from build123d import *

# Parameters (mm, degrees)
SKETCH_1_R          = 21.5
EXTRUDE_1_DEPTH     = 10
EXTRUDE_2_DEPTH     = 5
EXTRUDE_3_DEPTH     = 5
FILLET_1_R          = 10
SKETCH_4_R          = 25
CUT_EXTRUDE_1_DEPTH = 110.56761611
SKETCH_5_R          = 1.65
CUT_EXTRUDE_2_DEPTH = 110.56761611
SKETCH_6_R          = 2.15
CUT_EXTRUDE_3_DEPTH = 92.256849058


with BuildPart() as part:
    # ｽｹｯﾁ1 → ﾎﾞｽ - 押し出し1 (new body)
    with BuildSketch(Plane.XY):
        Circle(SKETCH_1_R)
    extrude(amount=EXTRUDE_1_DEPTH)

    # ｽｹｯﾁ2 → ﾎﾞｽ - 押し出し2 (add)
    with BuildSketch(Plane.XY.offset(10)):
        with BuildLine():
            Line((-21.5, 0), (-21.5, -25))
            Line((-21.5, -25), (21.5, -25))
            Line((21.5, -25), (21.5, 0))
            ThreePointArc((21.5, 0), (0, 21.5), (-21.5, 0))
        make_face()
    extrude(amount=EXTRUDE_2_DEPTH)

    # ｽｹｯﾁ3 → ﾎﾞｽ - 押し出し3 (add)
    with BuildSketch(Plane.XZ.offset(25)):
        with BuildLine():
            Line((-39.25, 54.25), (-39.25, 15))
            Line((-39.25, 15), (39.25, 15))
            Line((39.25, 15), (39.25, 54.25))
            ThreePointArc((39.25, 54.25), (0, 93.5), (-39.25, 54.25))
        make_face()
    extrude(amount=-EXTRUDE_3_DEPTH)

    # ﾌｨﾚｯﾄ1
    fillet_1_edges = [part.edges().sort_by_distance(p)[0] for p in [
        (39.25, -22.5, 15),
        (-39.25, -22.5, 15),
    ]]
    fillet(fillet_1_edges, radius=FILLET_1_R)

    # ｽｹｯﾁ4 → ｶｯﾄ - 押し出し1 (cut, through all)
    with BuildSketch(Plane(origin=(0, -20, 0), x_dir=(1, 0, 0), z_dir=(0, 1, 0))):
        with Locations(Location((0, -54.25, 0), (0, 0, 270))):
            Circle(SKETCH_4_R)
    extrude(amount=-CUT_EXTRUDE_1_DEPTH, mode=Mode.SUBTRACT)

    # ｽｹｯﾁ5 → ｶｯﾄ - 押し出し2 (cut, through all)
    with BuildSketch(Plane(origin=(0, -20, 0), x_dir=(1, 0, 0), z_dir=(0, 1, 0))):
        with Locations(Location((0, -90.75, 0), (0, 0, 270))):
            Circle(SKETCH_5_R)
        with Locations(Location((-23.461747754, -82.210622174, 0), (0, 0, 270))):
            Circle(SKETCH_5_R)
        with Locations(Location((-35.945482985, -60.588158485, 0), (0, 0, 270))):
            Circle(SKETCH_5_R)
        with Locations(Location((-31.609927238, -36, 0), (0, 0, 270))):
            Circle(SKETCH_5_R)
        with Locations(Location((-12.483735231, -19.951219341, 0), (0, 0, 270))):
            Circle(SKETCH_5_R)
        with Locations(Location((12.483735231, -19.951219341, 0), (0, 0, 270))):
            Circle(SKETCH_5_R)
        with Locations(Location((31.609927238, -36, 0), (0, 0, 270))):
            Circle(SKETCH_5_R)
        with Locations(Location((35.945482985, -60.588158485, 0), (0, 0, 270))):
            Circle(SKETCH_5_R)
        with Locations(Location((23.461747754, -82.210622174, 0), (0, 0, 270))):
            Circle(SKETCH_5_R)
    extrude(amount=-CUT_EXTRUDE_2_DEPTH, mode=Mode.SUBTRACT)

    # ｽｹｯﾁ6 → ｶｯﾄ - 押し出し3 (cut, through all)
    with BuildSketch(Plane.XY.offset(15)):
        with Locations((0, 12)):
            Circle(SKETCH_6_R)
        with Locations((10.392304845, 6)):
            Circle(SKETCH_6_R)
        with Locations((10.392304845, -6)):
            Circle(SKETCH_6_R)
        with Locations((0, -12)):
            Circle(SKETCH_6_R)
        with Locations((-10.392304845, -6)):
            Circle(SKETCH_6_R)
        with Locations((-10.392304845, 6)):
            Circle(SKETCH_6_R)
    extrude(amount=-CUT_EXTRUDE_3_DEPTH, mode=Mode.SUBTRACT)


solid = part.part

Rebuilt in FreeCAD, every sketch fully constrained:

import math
import FreeCAD as App
import Part
import Sketcher
from FreeCAD import Vector
Q = App.Units.Quantity


def edges_at(feature, points):
    """Names of the edges that pass closest to the given points."""
    edges = feature.Shape.Edges
    near = lambda p: min(range(len(edges)), key=lambda i: edges[i].distToShape(Part.Vertex(*p))[0])
    return sorted({f"Edge{near(p) + 1}" for p in points})

doc = App.newDocument("Part")
body = doc.addObject("PartDesign::Body", "Body")

sketch1 = doc.addObject("Sketcher::SketchObject", "Sketch")
body.addObject(sketch1)
sketch1.AttachmentSupport = (doc.XY_Plane, [""])
sketch1.MapMode = "FlatFace"
sketch1.addGeometry(Part.Circle(Vector(0, 0, 0), Vector(0, 0, 1), 22), False)
sketch1.addConstraint(Sketcher.Constraint("Coincident", 0, 3, -1, 1))
sketch1.addConstraint(Sketcher.Constraint("Diameter", 0, Q("43 mm")))
pad1 = doc.addObject("PartDesign::Pad", "Pad")
body.addObject(pad1)
pad1.Profile = sketch1
pad1.Length = 10

sketch2 = doc.addObject("Sketcher::SketchObject", "Sketch001")
body.addObject(sketch2)
sketch2.AttachmentSupport = (doc.XY_Plane, [""])
sketch2.MapMode = "FlatFace"
sketch2.AttachmentOffset = App.Placement(Vector(0, 0, 10), App.Rotation())
sketch2.addGeometry(Part.LineSegment(Vector(-22, 0, 0), Vector(-22, -25, 0)), False)
sketch2.addGeometry(Part.LineSegment(Vector(-22, -25, 0), Vector(22, -25, 0)), False)
sketch2.addGeometry(Part.LineSegment(Vector(22, -25, 0), Vector(22, 0, 0)), False)
sketch2.addGeometry(Part.ArcOfCircle(Part.Circle(Vector(0, 0, 0), Vector(0, 0, 1), 22), math.radians(0), math.radians(180)), False)
sketch2.addConstraint(Sketcher.Constraint("Coincident", 0, 2, 1, 1))
sketch2.addConstraint(Sketcher.Constraint("Coincident", 1, 2, 2, 1))
sketch2.addConstraint(Sketcher.Constraint("Tangent", 2, 2, 3, 1))
sketch2.addConstraint(Sketcher.Constraint("Tangent", 3, 2, 0, 1))
sketch2.addConstraint(Sketcher.Constraint("Vertical", 0))
sketch2.addConstraint(Sketcher.Constraint("Horizontal", 1))
sketch2.addConstraint(Sketcher.Constraint("Vertical", 2))
sketch2.addConstraint(Sketcher.Constraint("Coincident", 3, 3, -1, 1))
sketch2.addConstraint(Sketcher.Constraint("Radius", 3, Q("21.5 mm")))
sketch2.addConstraint(Sketcher.Constraint("DistanceY", 0, 2, 0, 1, Q("25 mm")))
pad2 = doc.addObject("PartDesign::Pad", "Pad001")
body.addObject(pad2)
pad2.Profile = sketch2
pad2.Length = 5

sketch3 = doc.addObject("Sketcher::SketchObject", "Sketch002")
body.addObject(sketch3)
sketch3.AttachmentSupport = (doc.XZ_Plane, [""])
sketch3.MapMode = "FlatFace"
sketch3.AttachmentOffset = App.Placement(Vector(0, 0, 25), App.Rotation())
sketch3.addGeometry(Part.LineSegment(Vector(-39, 54, 0), Vector(-39, 15, 0)), False)
sketch3.addGeometry(Part.LineSegment(Vector(-39, 15, 0), Vector(39, 15, 0)), False)
sketch3.addGeometry(Part.LineSegment(Vector(39, 15, 0), Vector(39, 54, 0)), False)
sketch3.addGeometry(Part.ArcOfCircle(Part.Circle(Vector(0, 54, 0), Vector(0, 0, 1), 39), math.radians(0), math.radians(180)), False)
sketch3.addConstraint(Sketcher.Constraint("Coincident", 0, 2, 1, 1))
sketch3.addConstraint(Sketcher.Constraint("Coincident", 1, 2, 2, 1))
sketch3.addConstraint(Sketcher.Constraint("Tangent", 2, 2, 3, 1))
sketch3.addConstraint(Sketcher.Constraint("Tangent", 3, 2, 0, 1))
sketch3.addConstraint(Sketcher.Constraint("Vertical", 0))
sketch3.addConstraint(Sketcher.Constraint("Horizontal", 1))
sketch3.addConstraint(Sketcher.Constraint("Vertical", 2))
sketch3.addConstraint(Sketcher.Constraint("PointOnObject", 3, 3, -2))
sketch3.addConstraint(Sketcher.Constraint("Radius", 3, Q("39.25 mm")))
sketch3.addConstraint(Sketcher.Constraint("DistanceY", -1, 1, 0, 2, Q("15 mm")))
sketch3.addConstraint(Sketcher.Constraint("DistanceY", 0, 2, 0, 1, Q("39.25 mm")))
pad3 = doc.addObject("PartDesign::Pad", "Pad002")
body.addObject(pad3)
pad3.Profile = sketch3
pad3.Length = 5
pad3.Reversed = True
doc.recompute()

fillet = doc.addObject("PartDesign::Fillet", "Fillet")
body.addObject(fillet)
fillet.Base = (pad3, edges_at(pad3, [(39.25, -22.5, 15), (-39.25, -22.5, 15)]))
fillet.Radius = 10

sketch4 = doc.addObject("Sketcher::SketchObject", "Sketch003")
body.addObject(sketch4)
sketch4.AttachmentSupport = (doc.XZ_Plane, [""])
sketch4.MapMode = "FlatFace"
sketch4.AttachmentOffset = App.Placement(Vector(0, 0, 20), App.Rotation())
sketch4.addGeometry(Part.Circle(Vector(0, 54, 0), Vector(0, 0, 1), 25), False)
sketch4.addConstraint(Sketcher.Constraint("PointOnObject", 0, 3, -2))
sketch4.addConstraint(Sketcher.Constraint("Diameter", 0, Q("50 mm")))
sketch4.addConstraint(Sketcher.Constraint("DistanceY", -1, 1, 0, 3, Q("54.25 mm")))
pocket1 = doc.addObject("PartDesign::Pocket", "Pocket")
body.addObject(pocket1)
pocket1.Profile = sketch4
pocket1.Type = "ThroughAll"
pocket1.Reversed = True

sketch5 = doc.addObject("Sketcher::SketchObject", "Sketch004")
body.addObject(sketch5)
sketch5.AttachmentSupport = (doc.XZ_Plane, [""])
sketch5.MapMode = "FlatFace"
sketch5.AttachmentOffset = App.Placement(Vector(0, 0, 20), App.Rotation())
sketch5.addGeometry(Part.Circle(Vector(0, 90.8, 0), Vector(0, 0, 1), 1.6), False)
sketch5.addGeometry(Part.Circle(Vector(-23.5, 82.2, 0), Vector(0, 0, 1), 1.6), False)
sketch5.addGeometry(Part.Circle(Vector(-35.9, 60.6, 0), Vector(0, 0, 1), 1.6), False)
sketch5.addGeometry(Part.Circle(Vector(-31.6, 36, 0), Vector(0, 0, 1), 1.6), False)
sketch5.addGeometry(Part.Circle(Vector(-12.5, 20, 0), Vector(0, 0, 1), 1.6), False)
sketch5.addGeometry(Part.Circle(Vector(12.5, 20, 0), Vector(0, 0, 1), 1.6), False)
sketch5.addGeometry(Part.Circle(Vector(31.6, 36, 0), Vector(0, 0, 1), 1.6), False)
sketch5.addGeometry(Part.Circle(Vector(35.9, 60.6, 0), Vector(0, 0, 1), 1.6), False)
sketch5.addGeometry(Part.Circle(Vector(23.5, 82.2, 0), Vector(0, 0, 1), 1.6), False)
sketch5.addConstraint(Sketcher.Constraint("Equal", 0, 1))
sketch5.addConstraint(Sketcher.Constraint("Equal", 1, 2))
sketch5.addConstraint(Sketcher.Constraint("Equal", 2, 3))
sketch5.addConstraint(Sketcher.Constraint("Equal", 3, 4))
sketch5.addConstraint(Sketcher.Constraint("Equal", 4, 5))
sketch5.addConstraint(Sketcher.Constraint("Equal", 5, 6))
sketch5.addConstraint(Sketcher.Constraint("Equal", 6, 7))
sketch5.addConstraint(Sketcher.Constraint("Equal", 7, 8))
sketch5.addConstraint(Sketcher.Constraint("Symmetric", 4, 3, 5, 3, -2))
sketch5.addConstraint(Sketcher.Constraint("Symmetric", 3, 3, 6, 3, -2))
sketch5.addConstraint(Sketcher.Constraint("Symmetric", 2, 3, 7, 3, -2))
sketch5.addConstraint(Sketcher.Constraint("Symmetric", 1, 3, 8, 3, -2))
sketch5.addConstraint(Sketcher.Constraint("PointOnObject", 0, 3, -2))
sketch5.addConstraint(Sketcher.Constraint("Diameter", 0, Q("3.3 mm")))
sketch5.addConstraint(Sketcher.Constraint("DistanceY", -1, 1, 3, 3, Q("36 mm")))
sketch5.addConstraint(Sketcher.Constraint("DistanceY", -1, 1, 0, 3, Q("90.75 mm")))
sketch5.addConstraint(Sketcher.Constraint("DistanceY", -1, 1, 2, 3, Q("60.588158 mm")))
sketch5.addConstraint(Sketcher.Constraint("DistanceY", -1, 1, 4, 3, Q("19.951219 mm")))
sketch5.addConstraint(Sketcher.Constraint("DistanceX", 3, 3, 1, 3, Q("8.148179 mm")))
sketch5.addConstraint(Sketcher.Constraint("DistanceX", 4, 3, 5, 3, Q("24.96747 mm")))
sketch5.addConstraint(Sketcher.Constraint("DistanceX", 2, 3, 5, 3, Q("48.429218 mm")))
sketch5.addConstraint(Sketcher.Constraint("DistanceX", 2, 3, 6, 3, Q("67.55541 mm")))
sketch5.addConstraint(Sketcher.Constraint("DistanceY", -1, 1, 1, 3, Q("82.210622 mm")))
pocket2 = doc.addObject("PartDesign::Pocket", "Pocket001")
body.addObject(pocket2)
pocket2.Profile = sketch5
pocket2.Type = "ThroughAll"
pocket2.Reversed = True

sketch6 = doc.addObject("Sketcher::SketchObject", "Sketch005")
body.addObject(sketch6)
sketch6.AttachmentSupport = (doc.XY_Plane, [""])
sketch6.MapMode = "FlatFace"
sketch6.AttachmentOffset = App.Placement(Vector(0, 0, 15), App.Rotation())
sketch6.addGeometry(Part.Circle(Vector(0, 12, 0), Vector(0, 0, 1), 2.1), False)
sketch6.addGeometry(Part.Circle(Vector(10.4, 6, 0), Vector(0, 0, 1), 2.1), False)
sketch6.addGeometry(Part.Circle(Vector(10.4, -6, 0), Vector(0, 0, 1), 2.1), False)
sketch6.addGeometry(Part.Circle(Vector(0, -12, 0), Vector(0, 0, 1), 2.1), False)
sketch6.addGeometry(Part.Circle(Vector(-10.4, -6, 0), Vector(0, 0, 1), 2.1), False)
sketch6.addGeometry(Part.Circle(Vector(-10.4, 6, 0), Vector(0, 0, 1), 2.1), False)
sketch6.addConstraint(Sketcher.Constraint("Equal", 0, 1))
sketch6.addConstraint(Sketcher.Constraint("Equal", 1, 2))
sketch6.addConstraint(Sketcher.Constraint("Equal", 2, 3))
sketch6.addConstraint(Sketcher.Constraint("Equal", 3, 4))
sketch6.addConstraint(Sketcher.Constraint("Equal", 4, 5))
sketch6.addConstraint(Sketcher.Constraint("Symmetric", 0, 3, 3, 3, -1, 1))
sketch6.addConstraint(Sketcher.Constraint("Symmetric", 1, 3, 4, 3, -1, 1))
sketch6.addConstraint(Sketcher.Constraint("Symmetric", 2, 3, 5, 3, -1, 1))
sketch6.addConstraint(Sketcher.Constraint("Symmetric", 2, 3, 4, 3, -2))
sketch6.addConstraint(Sketcher.Constraint("PointOnObject", 0, 3, -2))
sketch6.addConstraint(Sketcher.Constraint("Diameter", 0, Q("4.3 mm")))
sketch6.addConstraint(Sketcher.Constraint("DistanceY", -1, 1, 0, 3, Q("12 mm")))
sketch6.addConstraint(Sketcher.Constraint("DistanceY", -1, 1, 1, 3, Q("6 mm")))
sketch6.addConstraint(Sketcher.Constraint("DistanceX", 4, 3, 2, 3, Q("20.78461 mm")))
pocket3 = doc.addObject("PartDesign::Pocket", "Pocket002")
body.addObject(pocket3)
pocket3.Profile = sketch6
pocket3.Type = "ThroughAll"

doc.recompute()
